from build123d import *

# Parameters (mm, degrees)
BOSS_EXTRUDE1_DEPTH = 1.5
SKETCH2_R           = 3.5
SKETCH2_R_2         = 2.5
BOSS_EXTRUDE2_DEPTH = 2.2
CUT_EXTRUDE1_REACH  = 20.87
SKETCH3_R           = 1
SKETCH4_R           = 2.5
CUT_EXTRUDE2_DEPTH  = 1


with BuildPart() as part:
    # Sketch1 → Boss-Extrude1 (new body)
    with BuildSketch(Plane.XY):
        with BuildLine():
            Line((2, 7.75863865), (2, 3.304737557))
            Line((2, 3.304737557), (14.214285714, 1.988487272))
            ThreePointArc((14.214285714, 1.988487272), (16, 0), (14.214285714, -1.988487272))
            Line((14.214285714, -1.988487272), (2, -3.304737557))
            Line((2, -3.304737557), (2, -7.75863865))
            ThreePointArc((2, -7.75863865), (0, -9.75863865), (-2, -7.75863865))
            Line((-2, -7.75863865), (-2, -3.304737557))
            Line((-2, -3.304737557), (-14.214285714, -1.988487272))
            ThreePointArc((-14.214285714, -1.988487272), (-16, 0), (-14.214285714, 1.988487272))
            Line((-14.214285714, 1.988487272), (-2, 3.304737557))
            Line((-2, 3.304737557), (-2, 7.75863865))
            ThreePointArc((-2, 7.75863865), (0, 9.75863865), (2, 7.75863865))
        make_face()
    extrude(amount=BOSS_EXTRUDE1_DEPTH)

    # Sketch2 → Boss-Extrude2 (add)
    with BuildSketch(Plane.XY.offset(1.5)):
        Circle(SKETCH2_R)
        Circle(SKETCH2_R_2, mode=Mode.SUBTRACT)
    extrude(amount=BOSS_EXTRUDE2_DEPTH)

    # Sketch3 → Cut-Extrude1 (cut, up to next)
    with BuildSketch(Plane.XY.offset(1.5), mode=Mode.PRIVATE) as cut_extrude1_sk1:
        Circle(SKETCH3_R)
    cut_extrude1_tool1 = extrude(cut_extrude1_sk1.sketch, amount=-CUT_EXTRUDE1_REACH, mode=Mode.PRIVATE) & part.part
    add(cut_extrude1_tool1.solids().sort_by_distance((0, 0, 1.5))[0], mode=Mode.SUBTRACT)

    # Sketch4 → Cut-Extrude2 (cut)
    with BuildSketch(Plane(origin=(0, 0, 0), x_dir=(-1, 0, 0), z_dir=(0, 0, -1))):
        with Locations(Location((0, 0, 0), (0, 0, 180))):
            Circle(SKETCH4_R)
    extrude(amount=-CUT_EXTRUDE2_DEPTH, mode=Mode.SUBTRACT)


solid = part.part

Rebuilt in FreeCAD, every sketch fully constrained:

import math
import FreeCAD as App
import Part
import Sketcher

V = App.Vector
Q = App.Units.Quantity

doc = App.newDocument("Part")
body = doc.addObject("PartDesign::Body", "Body")

# Sketch on XY plane
sketch1 = doc.addObject("Sketcher::SketchObject", "Sketch")
body.addObject(sketch1)
sketch1.AttachmentSupport = (doc.XY_Plane, [""])
sketch1.MapMode = "FlatFace"
sketch1.addGeometry(Part.LineSegment(V(2, 3.304738, 0), V(2, 7.758639, 0)), False)
sketch1.addGeometry(Part.ArcOfCircle(Part.Circle(V(0, 7.758639, 0), V(0, 0, 1), 2), math.radians(0), math.radians(180)), False)
sketch1.addGeometry(Part.LineSegment(V(-2, 7.758639, 0), V(-2, 3.304738, 0)), False)
sketch1.addGeometry(Part.LineSegment(V(-2, 3.304738, 0), V(-14.214286, 1.988487, 0)), False)
sketch1.addGeometry(Part.ArcOfCircle(Part.Circle(V(-14, 0, 0), V(0, 0, 1), 2), math.radians(96.15064), math.radians(263.84936)), False)
sketch1.addGeometry(Part.LineSegment(V(-14.214286, -1.988487, 0), V(-2, -3.304738, 0)), False)
sketch1.addGeometry(Part.LineSegment(V(-2, -3.304738, 0), V(-2, -7.758639, 0)), False)
sketch1.addGeometry(Part.ArcOfCircle(Part.Circle(V(0, -7.758639, 0), V(0, 0, 1), 2), math.radians(180), math.radians(360)), False)
sketch1.addGeometry(Part.LineSegment(V(2, -7.758639, 0), V(2, -3.304738, 0)), False)
sketch1.addGeometry(Part.LineSegment(V(2, -3.304738, 0), V(14.214286, -1.988487, 0)), False)
sketch1.addGeometry(Part.ArcOfCircle(Part.Circle(V(14, 0, 0), V(0, 0, 1), 2), math.radians(-83.84936), math.radians(83.84936)), False)
sketch1.addGeometry(Part.LineSegment(V(14.214286, 1.988487, 0), V(2, 3.304738, 0)), False)
sketch1.addConstraint(Sketcher.Constraint("Tangent", 0, 2, 1, 1))
sketch1.addConstraint(Sketcher.Constraint("Tangent", 1, 2, 2, 1))
sketch1.addConstraint(Sketcher.Constraint("Coincident", 2, 2, 3, 1))
sketch1.addConstraint(Sketcher.Constraint("Tangent", 3, 2, 4, 1))
sketch1.addConstraint(Sketcher.Constraint("Tangent", 4, 2, 5, 1))
sketch1.addConstraint(Sketcher.Constraint("Coincident", 5, 2, 6, 1))
sketch1.addConstraint(Sketcher.Constraint("Tangent", 6, 2, 7, 1))
sketch1.addConstraint(Sketcher.Constraint("Tangent", 7, 2, 8, 1))
sketch1.addConstraint(Sketcher.Constraint("Coincident", 8, 2, 9, 1))
sketch1.addConstraint(Sketcher.Constraint("Tangent", 9, 2, 10, 1))
sketch1.addConstraint(Sketcher.Constraint("Tangent", 10, 2, 11, 1))
sketch1.addConstraint(Sketcher.Constraint("Coincident", 11, 2, 0, 1))
sketch1.addConstraint(Sketcher.Constraint("Vertical", 0))
sketch1.addConstraint(Sketcher.Constraint("Vertical", 2))
sketch1.addConstraint(Sketcher.Constraint("Vertical", 6))
sketch1.addConstraint(Sketcher.Constraint("Vertical", 8))
sketch1.addConstraint(Sketcher.Constraint("Equal", 1, 4))
sketch1.addConstraint(Sketcher.Constraint("Equal", 4, 7))
sketch1.addConstraint(Sketcher.Constraint("Equal", 7, 10))
sketch1.addConstraint(Sketcher.Constraint("Symmetric", 1, 3, 7, 3, -1, 1))
sketch1.addConstraint(Sketcher.Constraint("Symmetric", 4, 3, 10, 3, -1, 1))
sketch1.addConstraint(Sketcher.Constraint("Symmetric", 5, 2, 8, 2, -2))
sketch1.addConstraint(Sketcher.Constraint("Symmetric", 3, 2, 10, 2, -2))
sketch1.addConstraint(Sketcher.Constraint("Parallel", 3, 9))
sketch1.addConstraint(Sketcher.Constraint("Radius", 1, Q("2 mm")))
sketch1.addConstraint(Sketcher.Constraint("DistanceX", 4, 3, -1, 1, Q("14 mm")))
sketch1.addConstraint(Sketcher.Constraint("DistanceY", 0, 1, 0, 2, Q("4.453901 mm")))
sketch1.addConstraint(Sketcher.Constraint("DistanceY", -1, 1, 1, 3, Q("7.758639 mm")))
pad1 = doc.addObject("PartDesign::Pad", "Pad")
body.addObject(pad1)
pad1.Profile = sketch1
pad1.Length = 1.5

# Sketch on XY plane
sketch2 = doc.addObject("Sketcher::SketchObject", "Sketch001")
body.addObject(sketch2)
sketch2.AttachmentSupport = (doc.XY_Plane, [""])
sketch2.MapMode = "FlatFace"
sketch2.AttachmentOffset = App.Placement(V(0, 0, 1.5), App.Rotation())
sketch2.addGeometry(Part.Circle(V(0, 0, 0), V(0, 0, 1), 3.5), False)
sketch2.addGeometry(Part.Circle(V(0, 0, 0), V(0, 0, 1), 2.5), False)
sketch2.addConstraint(Sketcher.Constraint("Coincident", 0, 3, -1, 1))
sketch2.addConstraint(Sketcher.Constraint("Coincident", 1, 3, -1, 1))
sketch2.addConstraint(Sketcher.Constraint("Diameter", 0, Q("7 mm")))
sketch2.addConstraint(Sketcher.Constraint("Diameter", 1, Q("5 mm")))
pad2 = doc.addObject("PartDesign::Pad", "Pad001")
body.addObject(pad2)
pad2.Profile = sketch2
pad2.Length = 2.2

# Sketch on XY plane
sketch3 = doc.addObject("Sketcher::SketchObject", "Sketch002")
body.addObject(sketch3)
sketch3.AttachmentSupport = (doc.XY_Plane, [""])
sketch3.MapMode = "FlatFace"
sketch3.AttachmentOffset = App.Placement(V(0, 0, 1.5), App.Rotation())
sketch3.addGeometry(Part.Circle(V(0, 0, 0), V(0, 0, 1), 1), False)
sketch3.addConstraint(Sketcher.Constraint("Coincident", 0, 3, -1, 1))
sketch3.addConstraint(Sketcher.Constraint("Diameter", 0, Q("2 mm")))
pocket1 = doc.addObject("PartDesign::Pocket", "Pocket")
body.addObject(pocket1)
pocket1.Profile = sketch3
pocket1.Type = "UpToFirst"

# Sketch on XY plane
sketch4 = doc.addObject("Sketcher::SketchObject", "Sketch003")
body.addObject(sketch4)
sketch4.AttachmentSupport = (doc.XY_Plane, [""])
sketch4.MapMode = "FlatFace"
sketch4.addGeometry(Part.Circle(V(0, 0, 0), V(0, 0, 1), 2.5), False)
sketch4.addConstraint(Sketcher.Constraint("Coincident", 0, 3, -1, 1))
sketch4.addConstraint(Sketcher.Constraint("Diameter", 0, Q("5 mm")))
pocket2 = doc.addObject("PartDesign::Pocket", "Pocket001")
body.addObject(pocket2)
pocket2.Profile = sketch4
pocket2.Length = 1
pocket2.Reversed = True

doc.recompute()
